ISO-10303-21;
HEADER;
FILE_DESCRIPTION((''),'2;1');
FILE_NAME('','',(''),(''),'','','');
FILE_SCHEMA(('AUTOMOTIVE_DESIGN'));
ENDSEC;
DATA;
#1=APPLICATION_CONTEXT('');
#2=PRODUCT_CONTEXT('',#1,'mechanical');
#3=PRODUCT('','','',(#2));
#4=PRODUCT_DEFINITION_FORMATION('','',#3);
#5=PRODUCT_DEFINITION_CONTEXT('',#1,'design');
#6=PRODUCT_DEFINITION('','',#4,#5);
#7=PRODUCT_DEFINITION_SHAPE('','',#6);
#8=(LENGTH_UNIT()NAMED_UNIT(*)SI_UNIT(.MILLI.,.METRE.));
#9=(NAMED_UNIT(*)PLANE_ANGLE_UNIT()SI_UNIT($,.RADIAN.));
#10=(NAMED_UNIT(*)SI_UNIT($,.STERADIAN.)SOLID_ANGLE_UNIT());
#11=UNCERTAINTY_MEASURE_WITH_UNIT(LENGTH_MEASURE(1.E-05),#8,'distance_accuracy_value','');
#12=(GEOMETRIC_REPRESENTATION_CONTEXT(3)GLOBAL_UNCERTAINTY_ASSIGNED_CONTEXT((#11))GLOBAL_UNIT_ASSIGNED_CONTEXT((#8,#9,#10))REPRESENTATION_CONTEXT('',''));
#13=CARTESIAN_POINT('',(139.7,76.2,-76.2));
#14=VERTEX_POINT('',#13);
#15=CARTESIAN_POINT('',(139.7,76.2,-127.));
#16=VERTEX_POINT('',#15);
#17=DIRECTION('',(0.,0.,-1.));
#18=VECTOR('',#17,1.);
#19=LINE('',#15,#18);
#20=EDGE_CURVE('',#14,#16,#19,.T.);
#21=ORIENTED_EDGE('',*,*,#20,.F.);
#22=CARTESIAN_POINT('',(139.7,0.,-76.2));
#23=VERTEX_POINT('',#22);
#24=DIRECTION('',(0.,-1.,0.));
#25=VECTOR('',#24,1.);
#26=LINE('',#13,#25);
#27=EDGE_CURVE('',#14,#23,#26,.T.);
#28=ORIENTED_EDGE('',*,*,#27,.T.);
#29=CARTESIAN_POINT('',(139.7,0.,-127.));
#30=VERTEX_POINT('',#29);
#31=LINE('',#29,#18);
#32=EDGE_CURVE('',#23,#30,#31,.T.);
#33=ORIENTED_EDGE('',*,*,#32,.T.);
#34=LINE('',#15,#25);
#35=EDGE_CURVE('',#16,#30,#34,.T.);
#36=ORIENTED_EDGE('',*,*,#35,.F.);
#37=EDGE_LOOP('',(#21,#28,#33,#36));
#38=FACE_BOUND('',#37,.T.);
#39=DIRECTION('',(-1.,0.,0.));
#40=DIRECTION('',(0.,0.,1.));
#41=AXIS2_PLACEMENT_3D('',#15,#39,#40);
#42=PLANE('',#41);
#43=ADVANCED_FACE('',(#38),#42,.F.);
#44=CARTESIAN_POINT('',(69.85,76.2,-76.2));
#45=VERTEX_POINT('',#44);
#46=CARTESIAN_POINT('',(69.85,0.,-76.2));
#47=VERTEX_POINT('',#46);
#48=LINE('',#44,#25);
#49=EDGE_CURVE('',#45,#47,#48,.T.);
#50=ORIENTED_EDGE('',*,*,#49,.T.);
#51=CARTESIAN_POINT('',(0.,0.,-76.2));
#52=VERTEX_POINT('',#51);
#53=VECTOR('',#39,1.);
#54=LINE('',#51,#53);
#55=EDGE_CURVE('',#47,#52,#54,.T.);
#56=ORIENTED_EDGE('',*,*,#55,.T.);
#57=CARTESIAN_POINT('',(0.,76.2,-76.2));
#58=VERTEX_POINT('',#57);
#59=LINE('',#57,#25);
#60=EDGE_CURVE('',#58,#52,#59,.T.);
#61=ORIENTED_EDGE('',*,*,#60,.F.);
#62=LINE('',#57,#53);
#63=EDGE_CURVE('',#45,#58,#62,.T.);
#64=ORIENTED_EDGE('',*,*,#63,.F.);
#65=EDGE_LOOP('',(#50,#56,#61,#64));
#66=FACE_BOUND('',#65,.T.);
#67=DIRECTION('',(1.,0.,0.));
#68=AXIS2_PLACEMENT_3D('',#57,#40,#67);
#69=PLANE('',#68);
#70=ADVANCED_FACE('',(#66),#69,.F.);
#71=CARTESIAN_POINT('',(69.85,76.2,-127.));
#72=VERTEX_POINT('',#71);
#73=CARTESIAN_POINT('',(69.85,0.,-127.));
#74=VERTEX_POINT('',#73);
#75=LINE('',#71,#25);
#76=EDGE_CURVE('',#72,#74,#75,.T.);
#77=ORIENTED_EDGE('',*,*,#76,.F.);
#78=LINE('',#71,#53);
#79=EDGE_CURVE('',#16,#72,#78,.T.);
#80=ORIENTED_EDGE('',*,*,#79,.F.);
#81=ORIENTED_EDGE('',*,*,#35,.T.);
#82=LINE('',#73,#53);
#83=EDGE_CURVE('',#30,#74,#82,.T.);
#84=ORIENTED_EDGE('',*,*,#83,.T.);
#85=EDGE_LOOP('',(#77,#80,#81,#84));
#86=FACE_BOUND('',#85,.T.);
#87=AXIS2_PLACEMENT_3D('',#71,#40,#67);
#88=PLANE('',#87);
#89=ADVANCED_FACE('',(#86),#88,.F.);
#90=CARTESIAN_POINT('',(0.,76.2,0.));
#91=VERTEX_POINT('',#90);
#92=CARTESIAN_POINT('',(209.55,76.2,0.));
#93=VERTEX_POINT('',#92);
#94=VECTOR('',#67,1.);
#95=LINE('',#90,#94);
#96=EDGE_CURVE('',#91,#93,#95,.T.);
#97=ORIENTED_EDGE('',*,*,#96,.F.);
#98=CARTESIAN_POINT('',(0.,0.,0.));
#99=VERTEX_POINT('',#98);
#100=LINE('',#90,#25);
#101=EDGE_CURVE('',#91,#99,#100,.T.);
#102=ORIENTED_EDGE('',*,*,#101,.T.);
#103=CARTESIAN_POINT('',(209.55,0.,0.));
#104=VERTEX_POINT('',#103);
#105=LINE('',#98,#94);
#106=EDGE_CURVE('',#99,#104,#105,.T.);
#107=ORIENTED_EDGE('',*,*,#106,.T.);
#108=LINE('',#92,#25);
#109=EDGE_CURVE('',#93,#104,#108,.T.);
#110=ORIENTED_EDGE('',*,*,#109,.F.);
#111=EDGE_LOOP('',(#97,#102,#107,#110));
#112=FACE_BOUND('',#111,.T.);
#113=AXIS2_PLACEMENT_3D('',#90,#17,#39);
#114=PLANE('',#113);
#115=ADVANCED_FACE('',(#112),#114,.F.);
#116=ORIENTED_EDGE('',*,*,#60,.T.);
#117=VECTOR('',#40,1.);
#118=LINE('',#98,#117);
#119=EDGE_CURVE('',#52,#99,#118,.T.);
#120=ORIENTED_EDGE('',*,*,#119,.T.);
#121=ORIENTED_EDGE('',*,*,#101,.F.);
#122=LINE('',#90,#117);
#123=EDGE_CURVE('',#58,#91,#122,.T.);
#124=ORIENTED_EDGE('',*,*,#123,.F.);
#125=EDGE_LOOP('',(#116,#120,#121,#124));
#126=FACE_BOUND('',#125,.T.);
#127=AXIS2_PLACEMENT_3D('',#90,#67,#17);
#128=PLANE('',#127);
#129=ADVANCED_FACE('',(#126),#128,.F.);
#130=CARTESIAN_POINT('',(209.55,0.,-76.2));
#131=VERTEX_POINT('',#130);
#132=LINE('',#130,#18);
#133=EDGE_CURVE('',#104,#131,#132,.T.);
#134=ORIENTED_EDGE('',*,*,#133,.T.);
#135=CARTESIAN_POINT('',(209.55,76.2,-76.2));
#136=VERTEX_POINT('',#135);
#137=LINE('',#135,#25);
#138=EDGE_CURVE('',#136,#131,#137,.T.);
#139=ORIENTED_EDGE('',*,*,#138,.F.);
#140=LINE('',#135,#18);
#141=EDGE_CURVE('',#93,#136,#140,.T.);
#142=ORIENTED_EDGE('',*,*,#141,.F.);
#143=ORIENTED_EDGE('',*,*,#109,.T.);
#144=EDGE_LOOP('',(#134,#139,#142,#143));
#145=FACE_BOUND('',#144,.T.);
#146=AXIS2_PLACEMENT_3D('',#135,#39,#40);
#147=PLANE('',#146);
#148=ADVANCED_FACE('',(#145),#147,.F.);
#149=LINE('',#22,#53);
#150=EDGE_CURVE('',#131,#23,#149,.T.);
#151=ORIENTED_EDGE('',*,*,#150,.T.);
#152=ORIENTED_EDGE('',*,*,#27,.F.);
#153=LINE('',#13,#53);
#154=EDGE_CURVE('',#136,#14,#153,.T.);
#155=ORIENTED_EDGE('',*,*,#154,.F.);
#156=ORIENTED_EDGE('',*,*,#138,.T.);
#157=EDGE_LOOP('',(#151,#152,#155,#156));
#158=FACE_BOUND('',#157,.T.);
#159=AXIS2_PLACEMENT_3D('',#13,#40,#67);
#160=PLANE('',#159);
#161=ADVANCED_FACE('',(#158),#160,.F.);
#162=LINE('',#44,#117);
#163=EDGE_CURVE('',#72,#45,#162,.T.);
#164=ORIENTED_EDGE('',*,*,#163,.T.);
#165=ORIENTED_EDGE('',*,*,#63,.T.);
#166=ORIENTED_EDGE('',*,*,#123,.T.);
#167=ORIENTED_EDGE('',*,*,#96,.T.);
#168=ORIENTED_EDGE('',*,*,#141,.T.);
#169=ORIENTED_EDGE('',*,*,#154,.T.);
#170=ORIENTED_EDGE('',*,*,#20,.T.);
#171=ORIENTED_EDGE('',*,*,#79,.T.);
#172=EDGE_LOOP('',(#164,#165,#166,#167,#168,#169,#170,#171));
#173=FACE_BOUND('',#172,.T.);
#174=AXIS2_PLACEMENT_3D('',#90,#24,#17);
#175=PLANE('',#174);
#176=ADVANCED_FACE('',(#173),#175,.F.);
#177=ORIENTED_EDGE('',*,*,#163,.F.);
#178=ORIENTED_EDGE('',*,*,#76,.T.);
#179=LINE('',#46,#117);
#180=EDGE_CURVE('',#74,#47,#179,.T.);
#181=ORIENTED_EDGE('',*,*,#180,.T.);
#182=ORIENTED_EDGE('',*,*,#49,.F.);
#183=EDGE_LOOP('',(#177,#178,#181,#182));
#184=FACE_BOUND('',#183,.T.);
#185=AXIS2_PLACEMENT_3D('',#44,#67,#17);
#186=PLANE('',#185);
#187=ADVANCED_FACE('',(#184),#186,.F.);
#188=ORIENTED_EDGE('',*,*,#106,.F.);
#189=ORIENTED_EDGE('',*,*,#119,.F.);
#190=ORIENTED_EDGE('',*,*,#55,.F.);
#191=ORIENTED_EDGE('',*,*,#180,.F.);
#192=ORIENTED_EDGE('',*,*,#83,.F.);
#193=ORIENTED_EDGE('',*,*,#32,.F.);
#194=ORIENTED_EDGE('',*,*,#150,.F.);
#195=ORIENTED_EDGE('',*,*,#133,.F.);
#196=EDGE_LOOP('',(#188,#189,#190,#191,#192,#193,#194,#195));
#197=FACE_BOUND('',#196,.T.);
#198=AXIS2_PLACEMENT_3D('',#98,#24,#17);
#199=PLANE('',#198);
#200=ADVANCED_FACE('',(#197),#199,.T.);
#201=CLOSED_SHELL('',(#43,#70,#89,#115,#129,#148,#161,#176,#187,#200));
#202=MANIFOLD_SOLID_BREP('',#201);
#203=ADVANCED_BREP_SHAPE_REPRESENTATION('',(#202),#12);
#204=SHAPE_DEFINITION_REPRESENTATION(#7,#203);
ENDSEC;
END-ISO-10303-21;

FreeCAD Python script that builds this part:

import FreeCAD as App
import Part
import Sketcher
Q = App.Units.Quantity


def add_polygon(sketch, points):
    """Adds a closed chain of lines whose ends are joined by coincident constraints."""
    first, n = sketch.GeometryCount, len(points)
    for a, b in zip(points, points[1:] + points[:1]):
        sketch.addGeometry(Part.LineSegment(App.Vector(*a, 0), App.Vector(*b, 0)), False)
    for i in range(n):
        sketch.addConstraint(Sketcher.Constraint("Coincident", first + i, 2, first + (i + 1) % n, 1))

doc = App.newDocument("Part")
body = doc.addObject("PartDesign::Body", "Body")

# Sketch on XZ plane
sketch1 = body.newObject("Sketcher::SketchObject", "Sketch")
sketch1.AttachmentSupport = (doc.getObject("XZ_Plane"), [""])
sketch1.MapMode = "FlatFace"
add_polygon(sketch1, [(0, 0), (209.55, 0), (209.55, -76.2), (139.7, -76.2), (139.7, -127), (69.85, -127), (69.85, -76.2), (0, -76.2)])  # lines 0-7
sketch1.addConstraint([
    Sketcher.Constraint("Horizontal", 0),
    Sketcher.Constraint("Vertical", 1),
    Sketcher.Constraint("Horizontal", 2),
    Sketcher.Constraint("Vertical", 3),
    Sketcher.Constraint("Horizontal", 4),
    Sketcher.Constraint("Vertical", 5),
    Sketcher.Constraint("Horizontal", 6),
    Sketcher.Constraint("Vertical", 7),
    Sketcher.Constraint("Coincident", 7, 2, -1, 1),
    Sketcher.Constraint("Horizontal", 2, 2, 5, 2),
    Sketcher.Constraint("Equal", 2, 4),
    Sketcher.Constraint("Equal", 4, 6),
    Sketcher.Constraint("DistanceY", 1, 2, 1, 1, Q("3 in")),
    Sketcher.Constraint("DistanceY", 3, 2, 3, 1, Q("2 in")),
    Sketcher.Constraint("DistanceX", 0, 1, 0, 2, Q("8.25 in")),
])
pad1 = body.newObject("PartDesign::Pad", "Pad")
pad1.Profile = sketch1
pad1.Length = Q("3 in")
pad1.Reversed = True

doc.recompute()
